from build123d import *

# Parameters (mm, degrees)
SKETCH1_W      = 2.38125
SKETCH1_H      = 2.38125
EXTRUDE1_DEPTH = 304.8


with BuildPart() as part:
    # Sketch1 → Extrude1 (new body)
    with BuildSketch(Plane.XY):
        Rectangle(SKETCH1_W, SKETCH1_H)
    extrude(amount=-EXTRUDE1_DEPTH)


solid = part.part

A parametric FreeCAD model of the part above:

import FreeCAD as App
import Part
import Sketcher
from FreeCAD import Vector
Q = App.Units.Quantity


def add_polygon(sketch, points):
    """Adds a closed chain of lines whose ends are joined by coincident constraints."""
    first, n = sketch.GeometryCount, len(points)
    for a, b in zip(points, points[1:] + points[:1]):
        sketch.addGeometry(Part.LineSegment(App.Vector(*a, 0), App.Vector(*b, 0)), False)
    for i in range(n):
        sketch.addConstraint(Sketcher.Constraint("Coincident", first + i, 2, first + (i + 1) % n, 1))

doc = App.newDocument("Part")
body = doc.addObject("PartDesign::Body", "Body")

sketch1 = doc.addObject("Sketcher::SketchObject", "Sketch")
body.addObject(sketch1)
sketch1.AttachmentSupport = (doc.XY_Plane, [""])
sketch1.MapMode = "FlatFace"
add_polygon(sketch1, [(-1.2, 1.2), (-1.2, -1.2), (1.2, -1.2), (1.2, 1.2)])
sketch1.addConstraint([
    Sketcher.Constraint("Vertical", 0),
    Sketcher.Constraint("Horizontal", 1),
    Sketcher.Constraint("Vertical", 2),
    Sketcher.Constraint("Horizontal", 3),
    Sketcher.Constraint("Symmetric", 0, 2, 2, 2, -1, 1),
    Sketcher.Constraint("Equal", 3, 0),
    Sketcher.Constraint("DistanceX", 1, 1, 1, 2, Q("0.09375 in")),
])
pad1 = doc.addObject("PartDesign::Pad", "Pad")
body.addObject(pad1)
pad1.Profile = sketch1
pad1.Length = Q("12 in")
pad1.Reversed = True

doc.recompute()
